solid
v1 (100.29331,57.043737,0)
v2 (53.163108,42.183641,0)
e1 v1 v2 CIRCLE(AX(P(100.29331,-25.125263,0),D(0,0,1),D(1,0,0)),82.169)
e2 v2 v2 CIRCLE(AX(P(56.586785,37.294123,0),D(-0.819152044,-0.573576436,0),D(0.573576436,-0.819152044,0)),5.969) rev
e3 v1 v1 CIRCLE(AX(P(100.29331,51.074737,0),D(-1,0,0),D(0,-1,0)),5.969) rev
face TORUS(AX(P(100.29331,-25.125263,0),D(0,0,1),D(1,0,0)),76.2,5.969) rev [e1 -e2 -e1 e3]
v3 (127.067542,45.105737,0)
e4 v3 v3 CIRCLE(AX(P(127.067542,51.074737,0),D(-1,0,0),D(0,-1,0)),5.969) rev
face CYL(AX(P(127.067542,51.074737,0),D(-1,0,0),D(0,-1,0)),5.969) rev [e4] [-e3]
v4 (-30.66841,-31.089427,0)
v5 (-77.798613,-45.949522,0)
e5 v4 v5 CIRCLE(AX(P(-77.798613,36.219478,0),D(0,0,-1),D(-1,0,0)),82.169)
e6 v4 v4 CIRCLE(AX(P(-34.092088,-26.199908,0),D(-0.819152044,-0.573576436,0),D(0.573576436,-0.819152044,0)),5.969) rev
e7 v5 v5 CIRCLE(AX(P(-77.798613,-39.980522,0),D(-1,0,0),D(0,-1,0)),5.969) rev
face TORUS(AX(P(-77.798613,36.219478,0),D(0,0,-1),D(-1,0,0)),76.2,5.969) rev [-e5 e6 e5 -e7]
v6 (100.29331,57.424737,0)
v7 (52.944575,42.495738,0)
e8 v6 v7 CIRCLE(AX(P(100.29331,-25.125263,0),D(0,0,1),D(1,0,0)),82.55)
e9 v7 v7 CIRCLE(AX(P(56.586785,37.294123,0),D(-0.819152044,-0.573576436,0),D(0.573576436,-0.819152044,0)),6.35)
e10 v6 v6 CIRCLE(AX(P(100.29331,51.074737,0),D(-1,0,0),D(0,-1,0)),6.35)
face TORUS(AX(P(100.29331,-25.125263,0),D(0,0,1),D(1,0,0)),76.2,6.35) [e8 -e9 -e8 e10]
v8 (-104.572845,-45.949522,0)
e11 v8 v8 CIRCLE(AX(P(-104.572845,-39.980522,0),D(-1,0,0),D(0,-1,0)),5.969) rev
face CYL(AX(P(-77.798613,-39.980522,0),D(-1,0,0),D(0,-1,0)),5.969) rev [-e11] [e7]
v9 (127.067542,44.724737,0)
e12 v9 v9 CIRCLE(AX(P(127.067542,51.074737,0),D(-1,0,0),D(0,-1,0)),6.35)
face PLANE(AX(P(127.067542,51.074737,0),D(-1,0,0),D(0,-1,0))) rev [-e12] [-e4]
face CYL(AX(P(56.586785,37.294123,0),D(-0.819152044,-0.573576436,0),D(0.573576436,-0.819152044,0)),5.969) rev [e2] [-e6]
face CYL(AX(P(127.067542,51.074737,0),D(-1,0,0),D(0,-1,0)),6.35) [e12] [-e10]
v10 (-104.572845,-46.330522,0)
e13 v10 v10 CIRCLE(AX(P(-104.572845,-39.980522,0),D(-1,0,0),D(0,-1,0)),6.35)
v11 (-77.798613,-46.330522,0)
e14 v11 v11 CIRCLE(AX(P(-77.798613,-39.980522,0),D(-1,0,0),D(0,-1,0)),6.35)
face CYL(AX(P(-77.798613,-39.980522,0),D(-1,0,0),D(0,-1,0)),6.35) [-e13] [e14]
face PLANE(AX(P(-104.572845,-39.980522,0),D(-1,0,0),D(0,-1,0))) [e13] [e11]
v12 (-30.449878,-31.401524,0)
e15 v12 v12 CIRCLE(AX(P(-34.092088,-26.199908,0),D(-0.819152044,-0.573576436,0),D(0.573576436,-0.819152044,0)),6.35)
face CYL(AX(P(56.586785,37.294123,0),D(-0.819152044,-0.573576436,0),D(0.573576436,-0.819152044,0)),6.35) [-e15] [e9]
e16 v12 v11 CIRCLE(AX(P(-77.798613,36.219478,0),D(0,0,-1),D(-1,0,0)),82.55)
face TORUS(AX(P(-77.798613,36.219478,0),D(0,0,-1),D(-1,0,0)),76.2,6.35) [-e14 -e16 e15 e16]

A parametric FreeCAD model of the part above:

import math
import FreeCAD as App
import Part
import Sketcher

V = App.Vector
Q = App.Units.Quantity

doc = App.newDocument("Part")
body = doc.addObject("PartDesign::Body", "Body")

sketch1 = doc.addObject("Sketcher::SketchObject", "Sketch")
body.addObject(sketch1)
sketch1.AttachmentSupport = (doc.YZ_Plane, [""])
sketch1.MapMode = "FlatFace"
sketch1.AttachmentOffset = App.Placement(V(0, 0, 127.067542), App.Rotation())
sketch1.addGeometry([
    Part.Circle(V(51, 0, 0), V(0, 0, 1), 6),
    Part.Circle(V(51, 0, 0), V(0, 0, 1), 6),
], False)
sketch1.addConstraint([
    Sketcher.Constraint("Coincident", 1, 3, 0, 3),
    Sketcher.Constraint("PointOnObject", 0, 3, -1),
    Sketcher.Constraint("Diameter", 0, Q("0.5 in")),
    Sketcher.Constraint("Diameter", 1, Q("0.47 in")),
    Sketcher.Constraint("DistanceX", -1, 1, 0, 3, 51.074737),
])

sketch2 = doc.addObject("Sketcher::SketchObject", "Sketch001")
body.addObject(sketch2)
sketch2.AttachmentSupport = (doc.XY_Plane, [""])
sketch2.MapMode = "FlatFace"
sketch2.addGeometry([
    Part.LineSegment(V(127, 51, 0), V(100, 51, 0)),
    Part.ArcOfCircle(Part.Circle(V(100, -25, 0), V(0, 0, 1), 76), math.radians(90), math.radians(125)),
    Part.LineSegment(V(57, 37, 0), V(-34, -26, 0)),
    Part.ArcOfCircle(Part.Circle(V(-78, 36, 0), V(0, 0, 1), 76), math.radians(-90), math.radians(-55)),
    Part.LineSegment(V(-78, -40, 0), V(-105, -40, 0)),
], False)
sketch2.addConstraint([
    Sketcher.Constraint("Tangent", 0, 2, 1, 1),
    Sketcher.Constraint("Tangent", 1, 2, 2, 1),
    Sketcher.Constraint("Tangent", 2, 2, 3, 2),
    Sketcher.Constraint("Tangent", 3, 1, 4, 1),
    Sketcher.Constraint("Horizontal", 0),
    Sketcher.Constraint("Horizontal", 4),
    Sketcher.Constraint("Equal", 1, 3),
    Sketcher.Constraint("Equal", 0, 4),
    Sketcher.Constraint("Radius", 1, Q("3 in")),
    Sketcher.Constraint("Angle", 2, Q("-145 deg")),
    Sketcher.Constraint("DistanceX", 3, 3, 1, 2, 134.385398),
    Sketcher.Constraint("DistanceX", 0, 2, 0, 1, 26.774232),
    Sketcher.Constraint("DistanceX", -1, 1, 1, 3, 100.29331),
    Sketcher.Constraint("DistanceY", 2, 2, -1, 1, 26.199908),
])
doc.recompute()

additivepipe = doc.addObject("PartDesign::AdditivePipe", "AdditivePipe")
body.addObject(additivepipe)
additivepipe.Profile = sketch1
additivepipe.Spine = (sketch2, ["Edge1", "Edge2", "Edge3", "Edge4", "Edge5"])

doc.recompute()
